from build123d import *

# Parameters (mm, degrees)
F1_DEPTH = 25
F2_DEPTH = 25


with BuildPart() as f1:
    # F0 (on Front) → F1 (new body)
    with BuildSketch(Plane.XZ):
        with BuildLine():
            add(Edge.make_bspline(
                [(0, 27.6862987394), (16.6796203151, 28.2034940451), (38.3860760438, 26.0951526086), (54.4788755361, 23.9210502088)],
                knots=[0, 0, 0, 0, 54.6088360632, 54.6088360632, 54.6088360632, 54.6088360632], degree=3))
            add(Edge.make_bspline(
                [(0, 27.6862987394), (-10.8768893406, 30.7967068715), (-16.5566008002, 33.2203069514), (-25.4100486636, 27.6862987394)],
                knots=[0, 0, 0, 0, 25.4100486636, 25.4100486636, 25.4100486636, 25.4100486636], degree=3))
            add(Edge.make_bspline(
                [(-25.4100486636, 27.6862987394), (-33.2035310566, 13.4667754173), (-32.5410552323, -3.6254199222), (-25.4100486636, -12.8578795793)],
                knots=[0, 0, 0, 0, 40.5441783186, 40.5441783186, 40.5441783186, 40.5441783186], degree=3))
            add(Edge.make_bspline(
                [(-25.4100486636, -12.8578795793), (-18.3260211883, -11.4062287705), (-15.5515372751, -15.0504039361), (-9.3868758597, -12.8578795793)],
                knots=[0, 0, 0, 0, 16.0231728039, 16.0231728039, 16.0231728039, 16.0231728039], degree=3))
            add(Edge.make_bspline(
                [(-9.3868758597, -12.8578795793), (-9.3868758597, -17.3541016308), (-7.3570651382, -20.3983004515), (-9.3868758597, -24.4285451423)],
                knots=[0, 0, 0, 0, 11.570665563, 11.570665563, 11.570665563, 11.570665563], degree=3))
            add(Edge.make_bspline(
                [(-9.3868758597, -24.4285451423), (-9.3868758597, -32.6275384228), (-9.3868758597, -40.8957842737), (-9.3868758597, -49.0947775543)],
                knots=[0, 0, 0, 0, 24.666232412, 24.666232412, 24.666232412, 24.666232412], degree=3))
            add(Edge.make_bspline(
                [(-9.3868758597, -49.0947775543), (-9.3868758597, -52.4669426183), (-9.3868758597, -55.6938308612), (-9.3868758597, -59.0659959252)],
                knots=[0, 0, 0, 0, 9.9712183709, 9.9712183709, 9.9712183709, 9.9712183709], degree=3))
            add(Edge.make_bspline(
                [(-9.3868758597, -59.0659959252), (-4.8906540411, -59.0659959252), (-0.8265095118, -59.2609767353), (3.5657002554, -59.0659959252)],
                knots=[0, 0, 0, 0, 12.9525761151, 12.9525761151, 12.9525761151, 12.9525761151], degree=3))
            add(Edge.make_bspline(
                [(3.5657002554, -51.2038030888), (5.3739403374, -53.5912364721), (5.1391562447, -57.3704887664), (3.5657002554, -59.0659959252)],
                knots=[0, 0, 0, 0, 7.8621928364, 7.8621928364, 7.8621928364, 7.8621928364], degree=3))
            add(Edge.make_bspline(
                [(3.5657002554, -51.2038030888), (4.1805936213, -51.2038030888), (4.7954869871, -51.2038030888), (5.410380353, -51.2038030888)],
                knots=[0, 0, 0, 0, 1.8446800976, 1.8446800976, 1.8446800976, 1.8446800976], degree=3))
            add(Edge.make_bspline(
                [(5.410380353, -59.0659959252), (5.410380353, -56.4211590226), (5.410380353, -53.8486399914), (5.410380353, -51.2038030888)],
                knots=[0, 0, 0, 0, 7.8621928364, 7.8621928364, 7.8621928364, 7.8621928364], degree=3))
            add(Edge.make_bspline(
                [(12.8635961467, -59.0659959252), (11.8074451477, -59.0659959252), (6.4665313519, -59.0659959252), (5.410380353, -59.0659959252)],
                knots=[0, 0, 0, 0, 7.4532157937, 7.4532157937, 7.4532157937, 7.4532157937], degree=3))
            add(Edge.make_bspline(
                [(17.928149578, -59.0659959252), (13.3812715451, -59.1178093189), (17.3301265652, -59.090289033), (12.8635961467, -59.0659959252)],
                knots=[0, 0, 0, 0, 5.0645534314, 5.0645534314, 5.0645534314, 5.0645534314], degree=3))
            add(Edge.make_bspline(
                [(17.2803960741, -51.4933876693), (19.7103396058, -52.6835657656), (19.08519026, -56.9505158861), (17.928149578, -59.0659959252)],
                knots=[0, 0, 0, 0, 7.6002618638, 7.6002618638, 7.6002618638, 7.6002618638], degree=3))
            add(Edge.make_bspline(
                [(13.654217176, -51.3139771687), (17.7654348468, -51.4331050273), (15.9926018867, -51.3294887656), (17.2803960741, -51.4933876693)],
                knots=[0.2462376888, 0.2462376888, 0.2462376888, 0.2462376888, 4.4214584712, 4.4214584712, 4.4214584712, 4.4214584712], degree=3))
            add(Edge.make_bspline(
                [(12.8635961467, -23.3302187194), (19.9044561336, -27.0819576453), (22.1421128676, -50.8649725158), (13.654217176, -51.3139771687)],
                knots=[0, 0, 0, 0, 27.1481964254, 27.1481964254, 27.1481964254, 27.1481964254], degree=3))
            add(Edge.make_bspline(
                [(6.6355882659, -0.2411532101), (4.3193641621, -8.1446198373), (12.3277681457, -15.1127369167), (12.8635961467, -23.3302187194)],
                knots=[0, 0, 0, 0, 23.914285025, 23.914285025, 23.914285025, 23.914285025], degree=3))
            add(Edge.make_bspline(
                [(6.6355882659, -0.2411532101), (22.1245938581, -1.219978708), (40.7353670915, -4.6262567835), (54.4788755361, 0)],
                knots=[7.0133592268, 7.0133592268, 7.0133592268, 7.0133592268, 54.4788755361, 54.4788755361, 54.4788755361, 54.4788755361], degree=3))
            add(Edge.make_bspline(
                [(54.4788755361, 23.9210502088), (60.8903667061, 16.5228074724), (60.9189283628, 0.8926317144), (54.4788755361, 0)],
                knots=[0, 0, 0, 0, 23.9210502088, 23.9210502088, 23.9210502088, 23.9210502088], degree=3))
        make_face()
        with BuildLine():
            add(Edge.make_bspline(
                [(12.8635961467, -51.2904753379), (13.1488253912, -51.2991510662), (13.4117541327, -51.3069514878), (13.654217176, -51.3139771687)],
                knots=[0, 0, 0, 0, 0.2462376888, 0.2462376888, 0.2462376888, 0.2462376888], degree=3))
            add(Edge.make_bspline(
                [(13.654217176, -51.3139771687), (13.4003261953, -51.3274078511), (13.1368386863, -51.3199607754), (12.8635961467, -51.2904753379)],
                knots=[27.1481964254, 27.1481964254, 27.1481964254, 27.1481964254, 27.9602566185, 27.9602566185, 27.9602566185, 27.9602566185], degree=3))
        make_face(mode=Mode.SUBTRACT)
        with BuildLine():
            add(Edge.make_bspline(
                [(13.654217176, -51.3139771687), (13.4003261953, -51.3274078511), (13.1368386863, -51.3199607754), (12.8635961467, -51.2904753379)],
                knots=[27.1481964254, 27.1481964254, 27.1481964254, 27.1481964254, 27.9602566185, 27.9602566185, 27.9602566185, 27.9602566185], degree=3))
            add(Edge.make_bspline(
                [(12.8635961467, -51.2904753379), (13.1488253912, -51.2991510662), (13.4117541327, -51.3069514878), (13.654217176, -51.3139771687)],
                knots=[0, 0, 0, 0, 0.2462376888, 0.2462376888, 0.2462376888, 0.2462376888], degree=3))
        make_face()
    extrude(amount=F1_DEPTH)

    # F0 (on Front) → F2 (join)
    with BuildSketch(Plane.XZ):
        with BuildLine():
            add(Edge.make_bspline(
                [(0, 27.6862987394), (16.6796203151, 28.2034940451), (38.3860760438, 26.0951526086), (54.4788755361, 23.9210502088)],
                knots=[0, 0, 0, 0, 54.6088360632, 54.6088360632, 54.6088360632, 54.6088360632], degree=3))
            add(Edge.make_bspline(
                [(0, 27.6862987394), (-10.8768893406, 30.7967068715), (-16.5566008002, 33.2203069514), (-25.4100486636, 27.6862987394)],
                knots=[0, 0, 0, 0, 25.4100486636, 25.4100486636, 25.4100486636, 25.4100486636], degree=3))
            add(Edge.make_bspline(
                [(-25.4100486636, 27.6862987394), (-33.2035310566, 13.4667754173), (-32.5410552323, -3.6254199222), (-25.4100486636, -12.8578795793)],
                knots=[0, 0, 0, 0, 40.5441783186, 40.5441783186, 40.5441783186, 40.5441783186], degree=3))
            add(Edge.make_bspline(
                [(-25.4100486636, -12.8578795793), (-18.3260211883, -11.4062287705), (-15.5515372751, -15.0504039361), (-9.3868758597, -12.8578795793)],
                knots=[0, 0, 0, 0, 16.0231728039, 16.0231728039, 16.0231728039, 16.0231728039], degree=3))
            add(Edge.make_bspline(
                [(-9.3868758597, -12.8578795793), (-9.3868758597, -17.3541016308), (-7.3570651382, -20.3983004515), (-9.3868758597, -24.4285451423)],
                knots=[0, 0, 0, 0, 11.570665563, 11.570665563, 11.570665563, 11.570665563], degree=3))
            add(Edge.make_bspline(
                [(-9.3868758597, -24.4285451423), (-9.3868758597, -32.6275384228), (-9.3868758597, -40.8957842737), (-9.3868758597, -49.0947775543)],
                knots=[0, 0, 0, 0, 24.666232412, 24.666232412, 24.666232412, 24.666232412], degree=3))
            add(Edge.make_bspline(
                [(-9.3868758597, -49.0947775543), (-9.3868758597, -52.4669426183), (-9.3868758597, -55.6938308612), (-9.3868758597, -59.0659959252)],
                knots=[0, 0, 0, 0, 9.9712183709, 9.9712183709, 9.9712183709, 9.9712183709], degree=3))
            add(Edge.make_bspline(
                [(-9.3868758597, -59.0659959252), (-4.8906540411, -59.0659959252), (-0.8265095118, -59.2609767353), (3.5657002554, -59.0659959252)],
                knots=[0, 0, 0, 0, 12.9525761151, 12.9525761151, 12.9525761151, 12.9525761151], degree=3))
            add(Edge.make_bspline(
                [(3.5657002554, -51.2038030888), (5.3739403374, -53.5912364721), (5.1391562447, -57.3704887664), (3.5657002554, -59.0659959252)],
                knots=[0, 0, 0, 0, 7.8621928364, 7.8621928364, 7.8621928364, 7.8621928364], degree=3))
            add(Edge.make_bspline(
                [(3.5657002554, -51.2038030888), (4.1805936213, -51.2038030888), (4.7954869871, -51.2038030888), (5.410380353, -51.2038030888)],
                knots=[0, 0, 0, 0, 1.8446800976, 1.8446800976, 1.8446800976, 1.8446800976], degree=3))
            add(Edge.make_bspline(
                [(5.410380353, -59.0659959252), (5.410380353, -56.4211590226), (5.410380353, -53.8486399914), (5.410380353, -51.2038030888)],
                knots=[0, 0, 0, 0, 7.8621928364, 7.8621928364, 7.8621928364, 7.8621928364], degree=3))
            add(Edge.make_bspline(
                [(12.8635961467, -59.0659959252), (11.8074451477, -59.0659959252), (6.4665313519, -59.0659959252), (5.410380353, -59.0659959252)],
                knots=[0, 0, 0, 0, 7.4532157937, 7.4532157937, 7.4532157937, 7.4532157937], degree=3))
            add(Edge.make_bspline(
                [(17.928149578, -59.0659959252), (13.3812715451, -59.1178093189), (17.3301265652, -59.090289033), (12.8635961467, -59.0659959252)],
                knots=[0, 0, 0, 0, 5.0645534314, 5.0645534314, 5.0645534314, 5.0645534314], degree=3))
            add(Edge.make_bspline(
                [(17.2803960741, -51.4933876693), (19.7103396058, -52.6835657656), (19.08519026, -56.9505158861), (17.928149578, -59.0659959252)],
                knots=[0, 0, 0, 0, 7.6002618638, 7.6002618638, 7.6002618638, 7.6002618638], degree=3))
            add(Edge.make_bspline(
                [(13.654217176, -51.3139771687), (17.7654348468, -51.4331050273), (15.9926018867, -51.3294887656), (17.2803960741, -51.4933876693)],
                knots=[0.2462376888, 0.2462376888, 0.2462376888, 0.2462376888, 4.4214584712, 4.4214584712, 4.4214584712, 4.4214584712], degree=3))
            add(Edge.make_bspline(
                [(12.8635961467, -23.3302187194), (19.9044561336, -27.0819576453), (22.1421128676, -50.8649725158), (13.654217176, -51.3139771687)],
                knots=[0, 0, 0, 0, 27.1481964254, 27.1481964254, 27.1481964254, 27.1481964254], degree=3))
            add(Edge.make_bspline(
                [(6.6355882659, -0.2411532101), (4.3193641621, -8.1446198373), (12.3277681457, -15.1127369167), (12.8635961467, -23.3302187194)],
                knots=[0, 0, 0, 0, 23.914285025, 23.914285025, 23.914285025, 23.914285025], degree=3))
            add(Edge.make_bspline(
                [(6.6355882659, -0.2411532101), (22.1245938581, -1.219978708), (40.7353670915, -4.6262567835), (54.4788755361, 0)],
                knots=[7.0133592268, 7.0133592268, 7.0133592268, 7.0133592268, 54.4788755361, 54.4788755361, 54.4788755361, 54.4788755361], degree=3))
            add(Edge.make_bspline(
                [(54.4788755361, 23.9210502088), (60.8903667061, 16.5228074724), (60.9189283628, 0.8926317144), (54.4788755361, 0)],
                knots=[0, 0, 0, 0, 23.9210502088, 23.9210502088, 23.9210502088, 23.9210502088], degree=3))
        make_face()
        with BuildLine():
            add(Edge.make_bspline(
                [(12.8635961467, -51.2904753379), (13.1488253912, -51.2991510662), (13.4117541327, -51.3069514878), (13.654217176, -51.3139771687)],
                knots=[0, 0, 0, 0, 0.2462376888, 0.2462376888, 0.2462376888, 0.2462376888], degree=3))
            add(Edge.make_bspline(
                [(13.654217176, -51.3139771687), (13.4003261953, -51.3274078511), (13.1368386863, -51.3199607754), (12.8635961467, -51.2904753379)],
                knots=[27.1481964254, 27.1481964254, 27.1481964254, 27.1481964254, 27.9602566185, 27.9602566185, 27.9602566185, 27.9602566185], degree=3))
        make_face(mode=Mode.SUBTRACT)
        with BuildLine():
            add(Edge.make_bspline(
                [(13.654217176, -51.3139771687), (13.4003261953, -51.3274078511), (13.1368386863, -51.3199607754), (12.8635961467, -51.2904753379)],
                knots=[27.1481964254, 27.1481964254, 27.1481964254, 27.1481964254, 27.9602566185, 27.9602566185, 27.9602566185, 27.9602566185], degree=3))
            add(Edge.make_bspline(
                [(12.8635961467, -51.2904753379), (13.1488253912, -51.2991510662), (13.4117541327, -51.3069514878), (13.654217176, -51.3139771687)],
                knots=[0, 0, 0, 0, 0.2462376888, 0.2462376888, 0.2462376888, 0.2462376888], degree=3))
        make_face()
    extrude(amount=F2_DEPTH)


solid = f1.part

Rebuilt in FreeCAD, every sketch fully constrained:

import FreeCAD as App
import Part
import Sketcher
from FreeCAD import Vector

doc = App.newDocument("Part")
body = doc.addObject("PartDesign::Body", "Body")

# Sketch on XZ plane
sketch1 = body.newObject("Sketcher::SketchObject", "Sketch")
sketch1.AttachmentSupport = (doc.getObject("XZ_Plane"), [""])
sketch1.MapMode = "FlatFace"
sketch1.addGeometry([
    Part.BSplineCurve([Vector(0, 27.686299, 0), Vector(-10.876889, 30.796707, 0), Vector(-16.556601, 33.220307, 0), Vector(-25.410049, 27.686299, 0)], [4, 4], [0, 25.410048664], False, 3, [1, 1, 1, 1], False),  # 0
    Part.BSplineCurve([Vector(-25.410049, 27.686299, 0), Vector(-33.203531, 13.466775, 0), Vector(-32.541055, -3.62542, 0), Vector(-25.410049, -12.85788, 0)], [4, 4], [0, 40.544178319], False, 3, [1, 1, 1, 1], False),  # 1
    Part.BSplineCurve([Vector(-25.410049, -12.85788, 0), Vector(-18.326021, -11.406229, 0), Vector(-15.551537, -15.050404, 0), Vector(-9.386876, -12.85788, 0)], [4, 4], [0, 16.023172804], False, 3, [1, 1, 1, 1], False),  # 2
    Part.BSplineCurve([Vector(-9.386876, -12.85788, 0), Vector(-9.386876, -17.354102, 0), Vector(-7.357065, -20.3983, 0), Vector(-9.386876, -24.428545, 0)], [4, 4], [0, 11.570665563], False, 3, [1, 1, 1, 1], False),  # 3
    Part.BSplineCurve([Vector(-9.386876, -24.428545, 0), Vector(-9.386876, -32.627538, 0), Vector(-9.386876, -40.895784, 0), Vector(-9.386876, -52.466943, 0), Vector(-9.386876, -55.693831, 0), Vector(-9.386876, -59.065996, 0)], [4, 2, 4], [0, 24.666232412, 34.811210503], False, 3, [1, 1, 1, 1, 1, 1], False),  # 4
    Part.BSplineCurve([Vector(-9.386876, -59.065996, 0), Vector(-4.890654, -59.065996, 0), Vector(-0.82651, -59.260977, 0), Vector(3.5657, -59.065996, 0)], [4, 4], [0, 12.952576115], False, 3, [1, 1, 1, 1], False),  # 5
    Part.BSplineCurve([Vector(3.5657, -51.203803, 0), Vector(5.37394, -53.591236, 0), Vector(5.139156, -57.370489, 0), Vector(3.5657, -59.065996, 0)], [4, 4], [0, 7.862192836], False, 3, [1, 1, 1, 1], False),  # 6
    Part.BSplineCurve([Vector(3.5657, -51.203803, 0), Vector(4.180594, -51.203803, 0), Vector(4.795487, -51.203803, 0), Vector(5.41038, -51.203803, 0)], [4, 4], [0, 1.844680098], False, 3, [1, 1, 1, 1], False),  # 7
    Part.BSplineCurve([Vector(5.41038, -59.065996, 0), Vector(5.41038, -56.421159, 0), Vector(5.41038, -53.84864, 0), Vector(5.41038, -51.203803, 0)], [4, 4], [0, 7.862192836], False, 3, [1, 1, 1, 1], False),  # 8
    Part.BSplineCurve([Vector(12.863596, -59.065996, 0), Vector(11.807445, -59.065996, 0), Vector(6.466531, -59.065996, 0), Vector(5.41038, -59.065996, 0)], [4, 4], [0, 7.453215794], False, 3, [1, 1, 1, 1], False),  # 9
    Part.BSplineCurve([Vector(17.92815, -59.065996, 0), Vector(13.381272, -59.117809, 0), Vector(17.330127, -59.090289, 0), Vector(12.863596, -59.065996, 0)], [4, 4], [0, 5.064553431], False, 3, [1, 1, 1, 1], False),  # 10
    Part.BSplineCurve([Vector(17.280396, -51.493388, 0), Vector(19.71034, -52.683566, 0), Vector(19.08519, -56.950516, 0), Vector(17.92815, -59.065996, 0)], [4, 4], [0, 7.600261864], False, 3, [1, 1, 1, 1], False),  # 11
    Part.BSplineCurve([Vector(13.654217, -51.313977, 0), Vector(17.765435, -51.433105, 0), Vector(15.992602, -51.329489, 0), Vector(17.280396, -51.493388, 0)], [4, 4], [0.246237689, 4.421458471], False, 3, [1, 1, 1, 1], False),  # 12
    Part.BSplineCurve([Vector(12.863596, -23.330219, 0), Vector(19.904456, -27.081958, 0), Vector(22.142113, -50.864973, 0), Vector(13.654217, -51.313977, 0)], [4, 4], [0, 27.148196425], False, 3, [1, 1, 1, 1], False),  # 13
    Part.BSplineCurve([Vector(6.635588, -0.241153, 0), Vector(4.319364, -8.14462, 0), Vector(12.327768, -15.112737, 0), Vector(12.863596, -23.330219, 0)], [4, 4], [0, 23.914285025], False, 3, [1, 1, 1, 1], False),  # 14
    Part.BSplineCurve([Vector(6.635588, -0.241153, 0), Vector(22.124594, -1.219979, 0), Vector(40.735367, -4.626257, 0), Vector(54.478876, 0, 0)], [4, 4], [7.013359227, 54.478875536], False, 3, [1, 1, 1, 1], False),  # 15
    Part.BSplineCurve([Vector(54.478876, 23.92105, 0), Vector(60.890367, 16.522807, 0), Vector(60.918928, 0.892632, 0), Vector(54.478876, 0, 0)], [4, 4], [0, 23.921050209], False, 3, [1, 1, 1, 1], False),  # 16
    Part.BSplineCurve([Vector(0, 27.686299, 0), Vector(16.67962, 28.203494, 0), Vector(38.386076, 26.095153, 0), Vector(54.478876, 23.92105, 0)], [4, 4], [0, 54.608836063], False, 3, [1, 1, 1, 1], False),  # 17
], False)
sketch1.addConstraint([
    Sketcher.Constraint("Block", 0),
    Sketcher.Constraint("Block", 1),
    Sketcher.Constraint("Block", 2),
    Sketcher.Constraint("Block", 3),
    Sketcher.Constraint("Block", 4),
    Sketcher.Constraint("Block", 5),
    Sketcher.Constraint("Block", 6),
    Sketcher.Constraint("Block", 7),
    Sketcher.Constraint("Block", 8),
    Sketcher.Constraint("Block", 9),
    Sketcher.Constraint("Block", 10),
    Sketcher.Constraint("Block", 11),
    Sketcher.Constraint("Block", 12),
    Sketcher.Constraint("Block", 13),
    Sketcher.Constraint("Block", 14),
    Sketcher.Constraint("Block", 15),
    Sketcher.Constraint("Block", 16),
    Sketcher.Constraint("Block", 17),
])
pad1 = body.newObject("PartDesign::Pad", "Pad")
pad1.Profile = sketch1
pad1.Length = 25

# Sketch on XZ plane
sketch2 = body.newObject("Sketcher::SketchObject", "Sketch001")
sketch2.AttachmentSupport = (doc.getObject("XZ_Plane"), [""])
sketch2.MapMode = "FlatFace"
sketch2.addGeometry([
    Part.BSplineCurve([Vector(0, 27.686299, 0), Vector(-10.876889, 30.796707, 0), Vector(-16.556601, 33.220307, 0), Vector(-25.410049, 27.686299, 0)], [4, 4], [0, 25.410048664], False, 3, [1, 1, 1, 1], False),  # 0
    Part.BSplineCurve([Vector(-25.410049, 27.686299, 0), Vector(-33.203531, 13.466775, 0), Vector(-32.541055, -3.62542, 0), Vector(-25.410049, -12.85788, 0)], [4, 4], [0, 40.544178319], False, 3, [1, 1, 1, 1], False),  # 1
    Part.BSplineCurve([Vector(-25.410049, -12.85788, 0), Vector(-18.326021, -11.406229, 0), Vector(-15.551537, -15.050404, 0), Vector(-9.386876, -12.85788, 0)], [4, 4], [0, 16.023172804], False, 3, [1, 1, 1, 1], False),  # 2
    Part.BSplineCurve([Vector(-9.386876, -12.85788, 0), Vector(-9.386876, -17.354102, 0), Vector(-7.357065, -20.3983, 0), Vector(-9.386876, -24.428545, 0)], [4, 4], [0, 11.570665563], False, 3, [1, 1, 1, 1], False),  # 3
    Part.BSplineCurve([Vector(-9.386876, -24.428545, 0), Vector(-9.386876, -32.627538, 0), Vector(-9.386876, -40.895784, 0), Vector(-9.386876, -52.466943, 0), Vector(-9.386876, -55.693831, 0), Vector(-9.386876, -59.065996, 0)], [4, 2, 4], [0, 24.666232412, 34.811210503], False, 3, [1, 1, 1, 1, 1, 1], False),  # 4
    Part.BSplineCurve([Vector(-9.386876, -59.065996, 0), Vector(-4.890654, -59.065996, 0), Vector(-0.82651, -59.260977, 0), Vector(3.5657, -59.065996, 0)], [4, 4], [0, 12.952576115], False, 3, [1, 1, 1, 1], False),  # 5
    Part.BSplineCurve([Vector(3.5657, -51.203803, 0), Vector(5.37394, -53.591236, 0), Vector(5.139156, -57.370489, 0), Vector(3.5657, -59.065996, 0)], [4, 4], [0, 7.862192836], False, 3, [1, 1, 1, 1], False),  # 6
    Part.BSplineCurve([Vector(3.5657, -51.203803, 0), Vector(4.180594, -51.203803, 0), Vector(4.795487, -51.203803, 0), Vector(5.41038, -51.203803, 0)], [4, 4], [0, 1.844680098], False, 3, [1, 1, 1, 1], False),  # 7
    Part.BSplineCurve([Vector(5.41038, -59.065996, 0), Vector(5.41038, -56.421159, 0), Vector(5.41038, -53.84864, 0), Vector(5.41038, -51.203803, 0)], [4, 4], [0, 7.862192836], False, 3, [1, 1, 1, 1], False),  # 8
    Part.BSplineCurve([Vector(12.863596, -59.065996, 0), Vector(11.807445, -59.065996, 0), Vector(6.466531, -59.065996, 0), Vector(5.41038, -59.065996, 0)], [4, 4], [0, 7.453215794], False, 3, [1, 1, 1, 1], False),  # 9
    Part.BSplineCurve([Vector(17.92815, -59.065996, 0), Vector(13.381272, -59.117809, 0), Vector(17.330127, -59.090289, 0), Vector(12.863596, -59.065996, 0)], [4, 4], [0, 5.064553431], False, 3, [1, 1, 1, 1], False),  # 10
    Part.BSplineCurve([Vector(17.280396, -51.493388, 0), Vector(19.71034, -52.683566, 0), Vector(19.08519, -56.950516, 0), Vector(17.92815, -59.065996, 0)], [4, 4], [0, 7.600261864], False, 3, [1, 1, 1, 1], False),  # 11
    Part.BSplineCurve([Vector(13.654217, -51.313977, 0), Vector(17.765435, -51.433105, 0), Vector(15.992602, -51.329489, 0), Vector(17.280396, -51.493388, 0)], [4, 4], [0.246237689, 4.421458471], False, 3, [1, 1, 1, 1], False),  # 12
    Part.BSplineCurve([Vector(12.863596, -23.330219, 0), Vector(19.904456, -27.081958, 0), Vector(22.142113, -50.864973, 0), Vector(13.654217, -51.313977, 0)], [4, 4], [0, 27.148196425], False, 3, [1, 1, 1, 1], False),  # 13
    Part.BSplineCurve([Vector(6.635588, -0.241153, 0), Vector(4.319364, -8.14462, 0), Vector(12.327768, -15.112737, 0), Vector(12.863596, -23.330219, 0)], [4, 4], [0, 23.914285025], False, 3, [1, 1, 1, 1], False),  # 14
    Part.BSplineCurve([Vector(6.635588, -0.241153, 0), Vector(22.124594, -1.219979, 0), Vector(40.735367, -4.626257, 0), Vector(54.478876, 0, 0)], [4, 4], [7.013359227, 54.478875536], False, 3, [1, 1, 1, 1], False),  # 15
    Part.BSplineCurve([Vector(54.478876, 23.92105, 0), Vector(60.890367, 16.522807, 0), Vector(60.918928, 0.892632, 0), Vector(54.478876, 0, 0)], [4, 4], [0, 23.921050209], False, 3, [1, 1, 1, 1], False),  # 16
    Part.BSplineCurve([Vector(0, 27.686299, 0), Vector(16.67962, 28.203494, 0), Vector(38.386076, 26.095153, 0), Vector(54.478876, 23.92105, 0)], [4, 4], [0, 54.608836063], False, 3, [1, 1, 1, 1], False),  # 17
], False)
sketch2.addConstraint([
    Sketcher.Constraint("Block", 0),
    Sketcher.Constraint("Block", 1),
    Sketcher.Constraint("Block", 2),
    Sketcher.Constraint("Block", 3),
    Sketcher.Constraint("Block", 4),
    Sketcher.Constraint("Block", 5),
    Sketcher.Constraint("Block", 6),
    Sketcher.Constraint("Block", 7),
    Sketcher.Constraint("Block", 8),
    Sketcher.Constraint("Block", 9),
    Sketcher.Constraint("Block", 10),
    Sketcher.Constraint("Block", 11),
    Sketcher.Constraint("Block", 12),
    Sketcher.Constraint("Block", 13),
    Sketcher.Constraint("Block", 14),
    Sketcher.Constraint("Block", 15),
    Sketcher.Constraint("Block", 16),
    Sketcher.Constraint("Block", 17),
])
pad2 = body.newObject("PartDesign::Pad", "Pad001")
pad2.Profile = sketch2
pad2.Length = 25

doc.recompute()
